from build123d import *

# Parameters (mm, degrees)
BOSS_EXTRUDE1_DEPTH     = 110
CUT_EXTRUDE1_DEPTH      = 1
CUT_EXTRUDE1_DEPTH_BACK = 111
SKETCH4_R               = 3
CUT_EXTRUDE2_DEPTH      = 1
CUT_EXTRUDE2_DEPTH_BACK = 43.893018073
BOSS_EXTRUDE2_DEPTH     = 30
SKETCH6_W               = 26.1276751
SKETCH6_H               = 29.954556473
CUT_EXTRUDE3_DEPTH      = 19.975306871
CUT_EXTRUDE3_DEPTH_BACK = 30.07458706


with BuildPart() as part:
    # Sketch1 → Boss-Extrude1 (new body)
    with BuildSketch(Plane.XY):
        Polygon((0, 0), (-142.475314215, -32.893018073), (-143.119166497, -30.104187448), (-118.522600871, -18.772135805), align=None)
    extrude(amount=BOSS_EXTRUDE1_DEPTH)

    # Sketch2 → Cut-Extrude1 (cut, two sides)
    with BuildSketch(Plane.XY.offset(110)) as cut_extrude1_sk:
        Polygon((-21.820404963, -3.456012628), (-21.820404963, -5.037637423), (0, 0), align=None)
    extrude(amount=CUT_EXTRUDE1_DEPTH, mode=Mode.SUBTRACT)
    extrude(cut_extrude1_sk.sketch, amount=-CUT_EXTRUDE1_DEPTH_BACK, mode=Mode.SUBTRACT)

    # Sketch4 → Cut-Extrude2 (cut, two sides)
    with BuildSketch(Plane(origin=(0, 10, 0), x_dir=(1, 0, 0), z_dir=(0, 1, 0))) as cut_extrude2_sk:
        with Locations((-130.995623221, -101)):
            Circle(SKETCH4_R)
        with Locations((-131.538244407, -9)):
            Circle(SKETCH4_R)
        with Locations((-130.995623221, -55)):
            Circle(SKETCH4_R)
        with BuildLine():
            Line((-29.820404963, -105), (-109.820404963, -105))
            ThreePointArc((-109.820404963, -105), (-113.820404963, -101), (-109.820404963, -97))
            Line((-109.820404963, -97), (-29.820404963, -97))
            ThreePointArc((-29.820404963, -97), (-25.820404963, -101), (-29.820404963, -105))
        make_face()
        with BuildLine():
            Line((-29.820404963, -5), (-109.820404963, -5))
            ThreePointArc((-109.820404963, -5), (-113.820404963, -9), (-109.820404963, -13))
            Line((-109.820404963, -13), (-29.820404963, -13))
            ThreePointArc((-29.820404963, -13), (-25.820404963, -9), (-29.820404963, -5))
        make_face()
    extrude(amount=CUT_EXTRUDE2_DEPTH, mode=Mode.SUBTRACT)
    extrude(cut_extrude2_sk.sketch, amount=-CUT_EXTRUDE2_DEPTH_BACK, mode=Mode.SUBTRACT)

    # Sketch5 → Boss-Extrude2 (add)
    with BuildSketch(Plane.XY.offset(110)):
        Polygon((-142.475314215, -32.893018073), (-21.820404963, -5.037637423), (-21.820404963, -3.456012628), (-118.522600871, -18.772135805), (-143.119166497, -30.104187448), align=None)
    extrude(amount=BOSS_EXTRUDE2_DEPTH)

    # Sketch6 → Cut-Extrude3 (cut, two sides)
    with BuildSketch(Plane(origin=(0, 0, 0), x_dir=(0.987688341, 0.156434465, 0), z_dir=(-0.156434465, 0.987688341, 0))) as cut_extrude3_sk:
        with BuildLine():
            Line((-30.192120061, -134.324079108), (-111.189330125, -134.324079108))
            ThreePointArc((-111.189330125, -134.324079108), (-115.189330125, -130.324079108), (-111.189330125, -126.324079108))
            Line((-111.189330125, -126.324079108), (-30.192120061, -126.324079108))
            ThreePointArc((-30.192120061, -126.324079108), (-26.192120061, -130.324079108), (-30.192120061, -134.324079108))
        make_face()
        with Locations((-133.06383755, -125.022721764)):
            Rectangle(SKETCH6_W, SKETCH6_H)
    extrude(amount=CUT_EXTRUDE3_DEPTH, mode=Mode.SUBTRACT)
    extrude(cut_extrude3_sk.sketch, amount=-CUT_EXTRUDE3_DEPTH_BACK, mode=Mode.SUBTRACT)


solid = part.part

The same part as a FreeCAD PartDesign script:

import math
import FreeCAD as App
import Part
import Sketcher
Q = App.Units.Quantity

doc = App.newDocument("Part")
body = doc.addObject("PartDesign::Body", "Body")

# Sketch on XY plane
sketch1 = body.newObject("Sketcher::SketchObject", "Sketch")
sketch1.AttachmentSupport = (doc.getObject("XY_Plane"), [""])
sketch1.MapMode = "FlatFace"
sketch1.addGeometry([
    Part.LineSegment(App.Vector(-142.5, -32.9, 0), App.Vector(0, 0, 0)),
    Part.LineSegment(App.Vector(0, 0, 0), App.Vector(-118.5, -18.8, 0)),
    Part.LineSegment(App.Vector(-118.5, -18.8, 0), App.Vector(-143.1, -30.1, 0)),
    Part.LineSegment(App.Vector(-143.1, -30.1, 0), App.Vector(-142.5, -32.9, 0)),
], False)
sketch1.addConstraint([
    Sketcher.Constraint("Coincident", 0, 2, 1, 1),
    Sketcher.Constraint("Coincident", 1, 2, 2, 1),
    Sketcher.Constraint("Coincident", 2, 2, 3, 1),
    Sketcher.Constraint("Coincident", 3, 2, 0, 1),
    Sketcher.Constraint("Coincident", 0, 2, -1, 1),
    Sketcher.Constraint("Perpendicular", 0, 3),
    Sketcher.Constraint("Angle", 0, Q("13 deg")),
    Sketcher.Constraint("Angle", 1, Q("-171 deg")),
    Sketcher.Constraint("Distance", 1, Q("120 mm")),
    Sketcher.Constraint("Distance", 0, Q("146.223 mm")),
    Sketcher.Constraint("Distance", 3, Q("2.862188 mm")),
])
pad1 = body.newObject("PartDesign::Pad", "Pad")
pad1.Profile = sketch1
pad1.Length = 110

# Sketch on XY plane
sketch2 = body.newObject("Sketcher::SketchObject", "Sketch001")
sketch2.AttachmentSupport = (doc.getObject("XY_Plane"), [""])
sketch2.MapMode = "FlatFace"
sketch2.AttachmentOffset = App.Placement(App.Vector(0, 0, 110), App.Rotation())
sketch2.addGeometry([
    Part.LineSegment(App.Vector(-21.8, -3.5, 0), App.Vector(-21.8, -5, 0)),
    Part.LineSegment(App.Vector(-21.8, -5, 0), App.Vector(0, 0, 0)),
    Part.LineSegment(App.Vector(0, 0, 0), App.Vector(-21.8, -3.5, 0)),
], False)
sketch2.addConstraint([
    Sketcher.Constraint("Coincident", 0, 2, 1, 1),
    Sketcher.Constraint("Coincident", 1, 2, 2, 1),
    Sketcher.Constraint("Coincident", 2, 2, 0, 1),
    Sketcher.Constraint("Vertical", 0),
    Sketcher.Constraint("Coincident", 1, 2, -1, 1),
    Sketcher.Constraint("Angle", 1, Q("13 deg")),
    Sketcher.Constraint("Angle", 2, Q("-171 deg")),
    Sketcher.Constraint("Distance", 2, Q("22.092399 mm")),
])
pocket1 = body.newObject("PartDesign::Pocket", "Pocket")
pocket1.Profile = sketch2
pocket1.Type = "ThroughAll"
pocket1.Midplane = True

# Sketch on XZ plane
sketch3 = body.newObject("Sketcher::SketchObject", "Sketch002")
sketch3.AttachmentSupport = (doc.getObject("XZ_Plane"), [""])
sketch3.MapMode = "FlatFace"
sketch3.AttachmentOffset = App.Placement(App.Vector(0, 0, -10), App.Rotation())
sketch3.addGeometry([
    Part.Circle(App.Vector(-131, 101, 0), App.Vector(0, 0, 1), 3),  # 0
    Part.Circle(App.Vector(-131.5, 9, 0), App.Vector(0, 0, 1), 3),  # 1
    Part.Circle(App.Vector(-131, 55, 0), App.Vector(0, 0, 1), 3),  # 2
    Part.LineSegment(App.Vector(-109.8, 105, 0), App.Vector(-29.8, 105, 0)),  # 3
    Part.ArcOfCircle(Part.Circle(App.Vector(-29.8, 101, 0), App.Vector(0, 0, 1), 4), math.radians(-90), math.radians(90)),  # 4
    Part.LineSegment(App.Vector(-29.8, 97, 0), App.Vector(-109.8, 97, 0)),  # 5
    Part.ArcOfCircle(Part.Circle(App.Vector(-109.8, 101, 0), App.Vector(0, 0, 1), 4), math.radians(90), math.radians(270)),  # 6
    Part.LineSegment(App.Vector(-29.8, 5, 0), App.Vector(-109.8, 5, 0)),  # 7
    Part.ArcOfCircle(Part.Circle(App.Vector(-109.8, 9, 0), App.Vector(0, 0, 1), 4), math.radians(90), math.radians(270)),  # 8
    Part.LineSegment(App.Vector(-109.8, 13, 0), App.Vector(-29.8, 13, 0)),  # 9
    Part.ArcOfCircle(Part.Circle(App.Vector(-29.8, 9, 0), App.Vector(0, 0, 1), 4), math.radians(-90), math.radians(90)),  # 10
], False)
sketch3.addConstraint([
    Sketcher.Constraint("Tangent", 3, 2, 4, 2),
    Sketcher.Constraint("Tangent", 4, 1, 5, 1),
    Sketcher.Constraint("Tangent", 5, 2, 6, 2),
    Sketcher.Constraint("Tangent", 6, 1, 3, 1),
    Sketcher.Constraint("Tangent", 7, 2, 8, 2),
    Sketcher.Constraint("Tangent", 8, 1, 9, 1),
    Sketcher.Constraint("Tangent", 9, 2, 10, 2),
    Sketcher.Constraint("Tangent", 10, 1, 7, 1),
    Sketcher.Constraint("Horizontal", 3),
    Sketcher.Constraint("Horizontal", 5),
    Sketcher.Constraint("Horizontal", 7),
    Sketcher.Constraint("Horizontal", 9),
    Sketcher.Constraint("Equal", 0, 1),
    Sketcher.Constraint("Equal", 1, 2),
    Sketcher.Constraint("Equal", 6, 8),
    Sketcher.Constraint("Horizontal", 0, 3, 4, 3),
    Sketcher.Constraint("Horizontal", 1, 3, 8, 3),
    Sketcher.Constraint("Vertical", 0, 3, 2, 3),
    Sketcher.Constraint("Vertical", 6, 3, 8, 3),
    Sketcher.Constraint("Vertical", 4, 3, 10, 3),
    Sketcher.Constraint("Diameter", 0, Q("6 mm")),
    Sketcher.Constraint("Radius", 4, Q("4 mm")),
    Sketcher.Constraint("DistanceX", 3, 1, 3, 2, Q("80 mm")),
    Sketcher.Constraint("DistanceY", -1, 1, 0, 3, Q("101 mm")),
    Sketcher.Constraint("DistanceY", -1, 1, 1, 3, Q("9 mm")),
    Sketcher.Constraint("DistanceY", -1, 1, 2, 3, Q("55 mm")),
    Sketcher.Constraint("DistanceX", 1, 3, 0, 3, Q("0.542621 mm")),
    Sketcher.Constraint("DistanceX", 0, 3, 4, 3, Q("101.175218 mm")),
    Sketcher.Constraint("DistanceX", 0, 3, -1, 1, Q("130.995623 mm")),
])
pocket2 = body.newObject("PartDesign::Pocket", "Pocket001")
pocket2.Profile = sketch3
pocket2.Type = "ThroughAll"
pocket2.Midplane = True

# Sketch on XY plane
sketch4 = body.newObject("Sketcher::SketchObject", "Sketch003")
sketch4.AttachmentSupport = (doc.getObject("XY_Plane"), [""])
sketch4.MapMode = "FlatFace"
sketch4.AttachmentOffset = App.Placement(App.Vector(0, 0, 110), App.Rotation())
sketch4.addGeometry([
    Part.LineSegment(App.Vector(-142.5, -32.9, 0), App.Vector(-21.8, -5, 0)),  # 0
    Part.LineSegment(App.Vector(-21.8, -5, 0), App.Vector(-21.8, -3.5, 0)),  # 1
    Part.LineSegment(App.Vector(-21.8, -3.5, 0), App.Vector(-118.5, -18.8, 0)),  # 2
    Part.LineSegment(App.Vector(-118.5, -18.8, 0), App.Vector(-143.1, -30.1, 0)),  # 3
    Part.LineSegment(App.Vector(-143.1, -30.1, 0), App.Vector(-142.5, -32.9, 0)),  # 4
], False)
sketch4.addConstraint([
    Sketcher.Constraint("Coincident", 0, 2, 1, 1),
    Sketcher.Constraint("Coincident", 1, 2, 2, 1),
    Sketcher.Constraint("Coincident", 2, 2, 3, 1),
    Sketcher.Constraint("Coincident", 3, 2, 4, 1),
    Sketcher.Constraint("Coincident", 4, 2, 0, 1),
    Sketcher.Constraint("Vertical", 1),
    Sketcher.Constraint("Perpendicular", 0, 4),
    Sketcher.Constraint("Angle", 0, Q("13 deg")),
    Sketcher.Constraint("Angle", 2, Q("-171 deg")),
    Sketcher.Constraint("Distance", 2, Q("97.907601 mm")),
    Sketcher.Constraint("DistanceX", 2, 2, -1, 1, Q("118.522601 mm")),
    Sketcher.Constraint("DistanceY", 2, 2, 0, 2, Q("13.734498 mm")),
    Sketcher.Constraint("Distance", 0, Q("123.828629 mm")),
    Sketcher.Constraint("Distance", 4, Q("2.862188 mm")),
    Sketcher.Constraint("DistanceY", 4, 2, -1, 1, Q("32.893018 mm")),
])
pad2 = body.newObject("PartDesign::Pad", "Pad001")
pad2.Profile = sketch4
pad2.Length = 30

# Sketch on an angled plane
sketch5 = body.newObject("Sketcher::SketchObject", "Sketch004")
sketch5.Placement = App.Placement(App.Vector(0, 0, 0), App.Rotation(App.Vector(0.987688341, 0.156434465, 0), App.Vector(0, 0, -1.000000001), App.Vector(-0.156434465, 0.987688341, 0), "ZXY"))
sketch5.addGeometry([
    Part.LineSegment(App.Vector(-111.2, -134.3, 0), App.Vector(-30.2, -134.3, 0)),  # 0
    Part.ArcOfCircle(Part.Circle(App.Vector(-30.2, -130.3, 0), App.Vector(0, 0, 1), 4), math.radians(-90), math.radians(90)),  # 1
    Part.LineSegment(App.Vector(-30.2, -126.3, 0), App.Vector(-111.2, -126.3, 0)),  # 2
    Part.ArcOfCircle(Part.Circle(App.Vector(-111.2, -130.3, 0), App.Vector(0, 0, 1), 4), math.radians(90), math.radians(270)),  # 3
    Part.LineSegment(App.Vector(-146.1, -110, 0), App.Vector(-146.1, -140, 0)),  # 4
    Part.LineSegment(App.Vector(-146.1, -140, 0), App.Vector(-120, -140, 0)),  # 5
    Part.LineSegment(App.Vector(-120, -140, 0), App.Vector(-120, -110, 0)),  # 6
    Part.LineSegment(App.Vector(-120, -110, 0), App.Vector(-146.1, -110, 0)),  # 7
], False)
sketch5.addConstraint([
    Sketcher.Constraint("Tangent", 0, 2, 1, 1),
    Sketcher.Constraint("Tangent", 1, 2, 2, 1),
    Sketcher.Constraint("Tangent", 2, 2, 3, 1),
    Sketcher.Constraint("Tangent", 3, 2, 0, 1),
    Sketcher.Constraint("Coincident", 4, 2, 5, 1),
    Sketcher.Constraint("Coincident", 5, 2, 6, 1),
    Sketcher.Constraint("Coincident", 6, 2, 7, 1),
    Sketcher.Constraint("Coincident", 7, 2, 4, 1),
    Sketcher.Constraint("Horizontal", 0),
    Sketcher.Constraint("Horizontal", 2),
    Sketcher.Constraint("Vertical", 4),
    Sketcher.Constraint("Horizontal", 5),
    Sketcher.Constraint("Vertical", 6),
    Sketcher.Constraint("Horizontal", 7),
    Sketcher.Constraint("Radius", 1, Q("4 mm")),
    Sketcher.Constraint("DistanceY", 4, 2, -1, 1, Q("140 mm")),
    Sketcher.Constraint("DistanceX", 5, 2, -1, 1, Q("120 mm")),
    Sketcher.Constraint("DistanceX", 0, 1, 0, 2, Q("80.99721 mm")),
    Sketcher.Constraint("DistanceX", 5, 1, 5, 2, Q("26.127675 mm")),
    Sketcher.Constraint("DistanceY", 4, 2, 4, 1, Q("29.954557 mm")),
    Sketcher.Constraint("DistanceX", 1, 3, -1, 1, Q("30.19212 mm")),
    Sketcher.Constraint("DistanceY", 1, 3, -1, 1, Q("130.324079 mm")),
])
pocket3 = body.newObject("PartDesign::Pocket", "Pocket002")
pocket3.Profile = sketch5
pocket3.Type = "ThroughAll"
pocket3.Midplane = True

doc.recompute()
